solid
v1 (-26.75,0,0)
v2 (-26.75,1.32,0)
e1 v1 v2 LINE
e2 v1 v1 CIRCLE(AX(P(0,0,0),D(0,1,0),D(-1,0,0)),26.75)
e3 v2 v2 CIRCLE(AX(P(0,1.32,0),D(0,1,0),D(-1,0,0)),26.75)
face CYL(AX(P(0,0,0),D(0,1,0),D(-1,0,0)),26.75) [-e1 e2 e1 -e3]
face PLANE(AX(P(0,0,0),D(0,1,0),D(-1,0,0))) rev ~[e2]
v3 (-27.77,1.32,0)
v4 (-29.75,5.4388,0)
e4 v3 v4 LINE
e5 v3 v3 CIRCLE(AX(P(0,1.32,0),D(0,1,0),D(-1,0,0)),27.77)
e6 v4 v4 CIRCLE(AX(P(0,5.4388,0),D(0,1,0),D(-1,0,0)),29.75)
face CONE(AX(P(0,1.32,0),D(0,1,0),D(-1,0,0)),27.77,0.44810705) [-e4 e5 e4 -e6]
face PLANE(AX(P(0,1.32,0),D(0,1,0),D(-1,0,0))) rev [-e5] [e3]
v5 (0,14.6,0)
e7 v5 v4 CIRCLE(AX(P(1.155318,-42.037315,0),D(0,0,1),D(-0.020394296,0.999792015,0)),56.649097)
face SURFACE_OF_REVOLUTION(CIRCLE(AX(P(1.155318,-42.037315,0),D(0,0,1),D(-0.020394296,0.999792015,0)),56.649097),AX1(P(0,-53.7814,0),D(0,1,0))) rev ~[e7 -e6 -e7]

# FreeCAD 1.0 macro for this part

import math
import FreeCAD as App
import Part
import Sketcher
from FreeCAD import Vector
Q = App.Units.Quantity

doc = App.newDocument("Part")
params = doc.addObject("Spreadsheet::Sheet", "Params")
for row, (alias, value) in enumerate([
    ("sketch1_height", "14.6 mm"),
    ("sketch1_length", "4.57 mm"),
    ("sketch1_width", "26.75 mm"),
    ("sketch1_width2", "1.02 mm"),
    ("sketch1_height2", "1.32 mm"),
    ("revolution_angle", "360 deg"),
], start=1):
    params.set(f"A{row}", alias)
    params.set(f"B{row}", "=" + value)
    params.setAlias(f"B{row}", alias)

body = doc.addObject("PartDesign::Body", "Body")

sketch1 = body.newObject("Sketcher::SketchObject", "Sketch")
sketch1.AttachmentSupport = (doc.getObject("XY_Plane"), [""])
sketch1.MapMode = "FlatFace"
sketch1.addGeometry(Part.LineSegment(Vector(-26.75, 0, 0), Vector(0, 0, 0)), False)
sketch1.addGeometry(Part.LineSegment(Vector(0, 0, 0), Vector(0, 14.6, 0)), False)
sketch1.addGeometry(Part.ArcOfCircle(Part.Circle(Vector(1.1553, -42.0372, 0), Vector(0, 0, 1), 56.648982), math.radians(91.168572), math.radians(123.062792)), False)
sketch1.addGeometry(Part.LineSegment(Vector(-29.75, 5.4388, 0), Vector(-27.77, 1.32, 0)), False)
sketch1.addGeometry(Part.LineSegment(Vector(-27.77, 1.32, 0), Vector(-26.75, 1.32, 0)), False)
sketch1.addGeometry(Part.LineSegment(Vector(-26.75, 1.32, 0), Vector(-26.75, 0, 0)), False)
sketch1.addConstraint(Sketcher.Constraint("Coincident", 0, 2, 1, 1))
sketch1.addConstraint(Sketcher.Constraint("Coincident", 1, 2, 2, 1))
sketch1.addConstraint(Sketcher.Constraint("Coincident", 2, 2, 3, 1))
sketch1.addConstraint(Sketcher.Constraint("Coincident", 3, 2, 4, 1))
sketch1.addConstraint(Sketcher.Constraint("Coincident", 4, 2, 5, 1))
sketch1.addConstraint(Sketcher.Constraint("Coincident", 5, 2, 0, 1))
sketch1.addConstraint(Sketcher.Constraint("Horizontal", 0))
sketch1.addConstraint(Sketcher.Constraint("Vertical", 1))
sketch1.addConstraint(Sketcher.Constraint("Horizontal", 4))
sketch1.addConstraint(Sketcher.Constraint("Vertical", 5))
sketch1.addConstraint(Sketcher.Constraint("Coincident", 0, 2, -1, 1))
sketch1.addConstraint(Sketcher.Constraint("DistanceY", 1, 1, 1, 2, Q("14.6 mm")))
sketch1.addConstraint(Sketcher.Constraint("Distance", 3, Q("4.57 mm")))
sketch1.addConstraint(Sketcher.Constraint("Radius", 2, Q("56.649 mm")))
sketch1.addConstraint(Sketcher.Constraint("DistanceX", 2, 2, 4, 2, Q("3 mm")))
sketch1.addConstraint(Sketcher.Constraint("DistanceX", 0, 1, 0, 2, Q("26.75 mm")))
sketch1.addConstraint(Sketcher.Constraint("DistanceX", 4, 1, 4, 2, Q("1.02 mm")))
sketch1.addConstraint(Sketcher.Constraint("DistanceY", 5, 2, 5, 1, Q("1.32 mm")))
sketch1.setExpression("Constraints[11]", "Params.sketch1_height")
sketch1.setExpression("Constraints[12]", "Params.sketch1_length")
sketch1.setExpression("Constraints[15]", "Params.sketch1_width")
sketch1.setExpression("Constraints[16]", "Params.sketch1_width2")
sketch1.setExpression("Constraints[17]", "Params.sketch1_height2")
revolution = body.newObject("PartDesign::Revolution", "Revolution")
revolution.Profile = sketch1
revolution.ReferenceAxis = (sketch1, ["V_Axis"])
revolution.setExpression("Angle", "Params.revolution_angle")

doc.recompute()
